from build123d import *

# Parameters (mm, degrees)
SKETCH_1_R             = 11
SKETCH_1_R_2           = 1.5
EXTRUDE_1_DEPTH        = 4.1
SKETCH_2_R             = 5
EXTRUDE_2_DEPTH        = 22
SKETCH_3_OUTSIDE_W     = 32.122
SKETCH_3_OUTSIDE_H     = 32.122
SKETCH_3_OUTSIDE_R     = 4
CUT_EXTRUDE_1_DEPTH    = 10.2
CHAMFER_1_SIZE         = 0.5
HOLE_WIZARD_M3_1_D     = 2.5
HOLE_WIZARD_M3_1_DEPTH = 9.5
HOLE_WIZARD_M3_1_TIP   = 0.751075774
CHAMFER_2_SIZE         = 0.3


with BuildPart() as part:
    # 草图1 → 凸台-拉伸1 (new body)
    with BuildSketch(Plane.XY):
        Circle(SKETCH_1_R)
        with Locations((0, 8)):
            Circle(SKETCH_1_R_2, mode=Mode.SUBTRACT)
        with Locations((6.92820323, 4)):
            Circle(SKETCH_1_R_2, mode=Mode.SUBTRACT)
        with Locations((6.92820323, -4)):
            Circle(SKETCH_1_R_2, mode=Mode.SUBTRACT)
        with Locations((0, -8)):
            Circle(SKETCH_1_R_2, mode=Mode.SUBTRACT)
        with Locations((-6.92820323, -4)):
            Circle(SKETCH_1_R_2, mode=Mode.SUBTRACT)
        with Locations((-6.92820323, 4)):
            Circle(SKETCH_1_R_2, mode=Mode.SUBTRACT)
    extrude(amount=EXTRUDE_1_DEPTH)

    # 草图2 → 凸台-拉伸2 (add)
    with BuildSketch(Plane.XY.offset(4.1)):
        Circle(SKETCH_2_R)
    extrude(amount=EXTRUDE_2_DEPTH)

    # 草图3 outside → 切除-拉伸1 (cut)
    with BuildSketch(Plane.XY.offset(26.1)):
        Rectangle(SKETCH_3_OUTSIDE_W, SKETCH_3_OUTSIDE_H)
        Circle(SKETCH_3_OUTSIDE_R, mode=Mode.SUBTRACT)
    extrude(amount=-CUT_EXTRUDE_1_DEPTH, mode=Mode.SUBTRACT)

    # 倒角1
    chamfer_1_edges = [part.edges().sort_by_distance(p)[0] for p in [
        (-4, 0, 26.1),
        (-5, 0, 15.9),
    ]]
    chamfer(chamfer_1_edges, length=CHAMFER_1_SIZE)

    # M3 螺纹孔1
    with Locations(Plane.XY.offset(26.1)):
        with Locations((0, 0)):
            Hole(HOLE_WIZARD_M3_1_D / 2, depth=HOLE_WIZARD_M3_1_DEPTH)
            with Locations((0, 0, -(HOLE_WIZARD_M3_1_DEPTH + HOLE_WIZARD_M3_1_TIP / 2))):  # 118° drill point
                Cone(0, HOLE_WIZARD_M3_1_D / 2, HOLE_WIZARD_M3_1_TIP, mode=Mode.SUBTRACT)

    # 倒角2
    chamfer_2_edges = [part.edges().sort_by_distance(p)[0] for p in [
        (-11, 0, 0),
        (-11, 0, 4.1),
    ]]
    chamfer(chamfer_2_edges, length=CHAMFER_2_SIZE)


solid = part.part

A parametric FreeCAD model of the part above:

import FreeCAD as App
import Part
import Sketcher
from FreeCAD import Vector


def edges_at(feature, points):
    """Names of the edges that pass closest to the given points."""
    edges = feature.Shape.Edges
    near = lambda p: min(range(len(edges)), key=lambda i: edges[i].distToShape(Part.Vertex(*p))[0])
    return sorted({f"Edge{near(p) + 1}" for p in points})

doc = App.newDocument("Part")
body = doc.addObject("PartDesign::Body", "Body")

# Sketch on XY plane
sketch1 = body.newObject("Sketcher::SketchObject", "Sketch")
sketch1.AttachmentSupport = (doc.getObject("XY_Plane"), [""])
sketch1.MapMode = "FlatFace"
sketch1.addGeometry(Part.Circle(Vector(0, 0, 0), Vector(0, 0, 1), 11), False)
sketch1.addGeometry(Part.Circle(Vector(0, -8, 0), Vector(0, 0, 1), 1.5), False)
sketch1.addGeometry(Part.Circle(Vector(-6.928203, -4, 0), Vector(0, 0, 1), 1.5), False)
sketch1.addGeometry(Part.Circle(Vector(6.928203, -4, 0), Vector(0, 0, 1), 1.5), False)
sketch1.addGeometry(Part.Circle(Vector(-6.928203, 4, 0), Vector(0, 0, 1), 1.5), False)
sketch1.addGeometry(Part.Circle(Vector(0, 8, 0), Vector(0, 0, 1), 1.5), False)
sketch1.addGeometry(Part.Circle(Vector(6.928203, 4, 0), Vector(0, 0, 1), 1.5), False)
sketch1.addConstraint(Sketcher.Constraint("Coincident", 0, 3, -1, 1))
sketch1.addConstraint(Sketcher.Constraint("Equal", 1, 2))
sketch1.addConstraint(Sketcher.Constraint("Equal", 2, 3))
sketch1.addConstraint(Sketcher.Constraint("Equal", 3, 4))
sketch1.addConstraint(Sketcher.Constraint("Equal", 4, 5))
sketch1.addConstraint(Sketcher.Constraint("Equal", 5, 6))
sketch1.addConstraint(Sketcher.Constraint("Symmetric", 3, 3, 4, 3, -1, 1))
sketch1.addConstraint(Sketcher.Constraint("Symmetric", 1, 3, 5, 3, -1, 1))
sketch1.addConstraint(Sketcher.Constraint("Symmetric", 2, 3, 6, 3, -1, 1))
sketch1.addConstraint(Sketcher.Constraint("Symmetric", 2, 3, 3, 3, -2))
sketch1.addConstraint(Sketcher.Constraint("PointOnObject", 1, 3, -2))
sketch1.addConstraint(Sketcher.Constraint("Diameter", 0, 22.0))
sketch1.addConstraint(Sketcher.Constraint("Diameter", 1, 3.0))
sketch1.addConstraint(Sketcher.Constraint("DistanceY", 1, 3, -1, 1, 8.0))
sketch1.addConstraint(Sketcher.Constraint("DistanceY", 2, 3, -1, 1, 4.0))
sketch1.addConstraint(Sketcher.Constraint("DistanceX", 2, 3, -1, 1, 6.928203))
pad1 = body.newObject("PartDesign::Pad", "Pad")
pad1.Profile = sketch1
pad1.Length = 4.1

# Sketch on XY plane
sketch2 = body.newObject("Sketcher::SketchObject", "Sketch001")
sketch2.AttachmentSupport = (doc.getObject("XY_Plane"), [""])
sketch2.MapMode = "FlatFace"
sketch2.AttachmentOffset = App.Placement(Vector(0, 0, 4.1), App.Rotation())
sketch2.addGeometry(Part.Circle(Vector(0, 0, 0), Vector(0, 0, 1), 5), False)
sketch2.addConstraint(Sketcher.Constraint("Coincident", 0, 3, -1, 1))
sketch2.addConstraint(Sketcher.Constraint("Diameter", 0, 10.0))
pad2 = body.newObject("PartDesign::Pad", "Pad001")
pad2.Profile = sketch2
pad2.Length = 22

# Sketch on XY plane
sketch3 = body.newObject("Sketcher::SketchObject", "Sketch002")
sketch3.AttachmentSupport = (doc.getObject("XY_Plane"), [""])
sketch3.MapMode = "FlatFace"
sketch3.AttachmentOffset = App.Placement(Vector(0, 0, 26.1), App.Rotation())
sketch3.addGeometry(Part.LineSegment(Vector(-16.061, 16.061, 0), Vector(-16.061, -16.061, 0)), False)
sketch3.addGeometry(Part.LineSegment(Vector(-16.061, -16.061, 0), Vector(16.061, -16.061, 0)), False)
sketch3.addGeometry(Part.LineSegment(Vector(16.061, -16.061, 0), Vector(16.061, 16.061, 0)), False)
sketch3.addGeometry(Part.LineSegment(Vector(16.061, 16.061, 0), Vector(-16.061, 16.061, 0)), False)
sketch3.addGeometry(Part.Circle(Vector(0, 0, 0), Vector(0, 0, 1), 4), False)
sketch3.addConstraint(Sketcher.Constraint("Coincident", 0, 2, 1, 1))
sketch3.addConstraint(Sketcher.Constraint("Coincident", 1, 2, 2, 1))
sketch3.addConstraint(Sketcher.Constraint("Coincident", 2, 2, 3, 1))
sketch3.addConstraint(Sketcher.Constraint("Coincident", 3, 2, 0, 1))
sketch3.addConstraint(Sketcher.Constraint("Vertical", 0))
sketch3.addConstraint(Sketcher.Constraint("Horizontal", 1))
sketch3.addConstraint(Sketcher.Constraint("Vertical", 2))
sketch3.addConstraint(Sketcher.Constraint("Horizontal", 3))
sketch3.addConstraint(Sketcher.Constraint("Coincident", 4, 3, -1, 1))
sketch3.addConstraint(Sketcher.Constraint("Symmetric", 0, 2, 2, 2, -1, 1))
sketch3.addConstraint(Sketcher.Constraint("Equal", 3, 0))
sketch3.addConstraint(Sketcher.Constraint("Diameter", 4, 8.0))
sketch3.addConstraint(Sketcher.Constraint("DistanceX", 1, 1, 1, 2, 32.122))
pocket1 = body.newObject("PartDesign::Pocket", "Pocket")
pocket1.Profile = sketch3
pocket1.Length = 10.2
doc.recompute()

chamfer = body.newObject("PartDesign::Chamfer", "Chamfer")
chamfer.Base = (pocket1, edges_at(pocket1, [(-4, 0, 26.1), (-5, 0, 15.9)]))
chamfer.Size = 0.5

# Sketch on XY plane
sketch4 = body.newObject("Sketcher::SketchObject", "Sketch003")
sketch4.AttachmentSupport = (doc.getObject("XY_Plane"), [""])
sketch4.MapMode = "FlatFace"
sketch4.AttachmentOffset = App.Placement(Vector(0, 0, 26.1), App.Rotation())
sketch4.addGeometry(Part.Circle(Vector(0, 0, 0), Vector(0, 0, 1), 1.25), False)
sketch4.addConstraint(Sketcher.Constraint("Coincident", 0, 3, -1, 1))
sketch4.addConstraint(Sketcher.Constraint("Diameter", 0, 2.5))
doc.recompute()
hole = body.newObject("PartDesign::Hole", "Hole")
hole.Profile = sketch4
hole.ThreadType = "None"
hole.Diameter = 2.5
hole.DepthType = "Dimension"
hole.Depth = 9.5
hole.DrillPoint = "Angled"
hole.DrillPointAngle = 118
doc.recompute()

chamfer2 = body.newObject("PartDesign::Chamfer", "Chamfer001")
chamfer2.Base = (hole, edges_at(hole, [(-11, 0, 0), (-11, 0, 4.1)]))
chamfer2.Size = 0.3

doc.recompute()
